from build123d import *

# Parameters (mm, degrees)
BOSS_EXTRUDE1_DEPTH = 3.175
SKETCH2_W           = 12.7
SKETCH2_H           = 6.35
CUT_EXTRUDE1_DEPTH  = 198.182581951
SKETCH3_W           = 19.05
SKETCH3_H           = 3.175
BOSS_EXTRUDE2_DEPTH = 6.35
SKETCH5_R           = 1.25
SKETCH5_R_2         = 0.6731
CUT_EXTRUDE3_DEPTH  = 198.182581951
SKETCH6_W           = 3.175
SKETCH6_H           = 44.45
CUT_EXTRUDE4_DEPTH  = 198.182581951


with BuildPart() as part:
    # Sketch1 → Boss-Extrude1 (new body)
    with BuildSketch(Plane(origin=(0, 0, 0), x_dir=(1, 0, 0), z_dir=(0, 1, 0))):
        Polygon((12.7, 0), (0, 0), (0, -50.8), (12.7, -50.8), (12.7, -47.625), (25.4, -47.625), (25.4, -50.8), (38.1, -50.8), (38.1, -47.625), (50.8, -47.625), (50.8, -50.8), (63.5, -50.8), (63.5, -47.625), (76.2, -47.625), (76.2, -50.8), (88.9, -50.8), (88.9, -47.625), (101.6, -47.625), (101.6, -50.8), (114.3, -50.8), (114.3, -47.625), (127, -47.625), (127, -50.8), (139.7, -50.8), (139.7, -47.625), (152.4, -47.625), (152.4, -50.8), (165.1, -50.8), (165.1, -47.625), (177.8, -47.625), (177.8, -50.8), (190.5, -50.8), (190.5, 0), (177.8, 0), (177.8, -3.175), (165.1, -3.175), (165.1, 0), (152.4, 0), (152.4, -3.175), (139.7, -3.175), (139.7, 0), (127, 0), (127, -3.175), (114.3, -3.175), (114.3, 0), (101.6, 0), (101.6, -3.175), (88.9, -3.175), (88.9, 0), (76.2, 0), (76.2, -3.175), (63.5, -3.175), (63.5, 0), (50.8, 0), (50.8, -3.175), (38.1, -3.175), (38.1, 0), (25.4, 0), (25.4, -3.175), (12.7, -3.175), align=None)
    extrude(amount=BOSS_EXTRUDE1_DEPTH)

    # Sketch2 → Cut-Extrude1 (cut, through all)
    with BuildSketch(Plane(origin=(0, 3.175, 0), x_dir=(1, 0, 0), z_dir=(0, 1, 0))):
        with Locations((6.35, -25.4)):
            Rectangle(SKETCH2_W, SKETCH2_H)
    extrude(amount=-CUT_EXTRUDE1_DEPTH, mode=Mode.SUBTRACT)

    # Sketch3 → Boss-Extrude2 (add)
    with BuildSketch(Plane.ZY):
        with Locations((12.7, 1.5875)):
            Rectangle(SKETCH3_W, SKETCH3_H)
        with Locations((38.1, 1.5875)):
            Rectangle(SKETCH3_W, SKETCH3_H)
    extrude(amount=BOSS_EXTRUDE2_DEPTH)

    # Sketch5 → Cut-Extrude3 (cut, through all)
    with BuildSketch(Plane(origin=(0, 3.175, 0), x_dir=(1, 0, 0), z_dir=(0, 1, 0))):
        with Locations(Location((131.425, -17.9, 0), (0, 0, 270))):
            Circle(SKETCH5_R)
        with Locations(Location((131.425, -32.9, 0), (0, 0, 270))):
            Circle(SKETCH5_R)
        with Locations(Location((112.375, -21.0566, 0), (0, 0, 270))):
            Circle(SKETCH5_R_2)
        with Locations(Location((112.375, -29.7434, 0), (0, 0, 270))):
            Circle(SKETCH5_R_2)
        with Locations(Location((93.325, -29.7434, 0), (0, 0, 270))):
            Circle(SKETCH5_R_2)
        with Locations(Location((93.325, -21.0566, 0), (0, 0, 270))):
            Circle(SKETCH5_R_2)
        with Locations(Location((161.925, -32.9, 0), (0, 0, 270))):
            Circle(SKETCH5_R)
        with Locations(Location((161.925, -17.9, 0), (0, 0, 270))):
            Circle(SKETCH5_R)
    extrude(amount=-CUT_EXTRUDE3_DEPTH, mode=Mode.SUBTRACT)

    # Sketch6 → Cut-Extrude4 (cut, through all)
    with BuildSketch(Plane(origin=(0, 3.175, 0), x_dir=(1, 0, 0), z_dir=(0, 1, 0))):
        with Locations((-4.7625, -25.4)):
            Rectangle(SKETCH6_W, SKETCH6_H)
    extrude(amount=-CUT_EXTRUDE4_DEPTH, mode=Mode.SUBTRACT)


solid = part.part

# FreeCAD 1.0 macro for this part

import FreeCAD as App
import Part
import Sketcher
from FreeCAD import Vector
Q = App.Units.Quantity

doc = App.newDocument("Part")
body = doc.addObject("PartDesign::Body", "Body")

sketch1 = doc.addObject("Sketcher::SketchObject", "Sketch")
body.addObject(sketch1)
sketch1.AttachmentSupport = (doc.XZ_Plane, [""])
sketch1.MapMode = "FlatFace"
sketch1.addGeometry([
    Part.LineSegment(Vector(12.7, 0, 0), Vector(0, 0, 0)),
    Part.LineSegment(Vector(0, 0, 0), Vector(0, 50.8, 0)),
    Part.LineSegment(Vector(0, 50.8, 0), Vector(12.7, 50.8, 0)),
    Part.LineSegment(Vector(12.7, 50.8, 0), Vector(12.7, 47.6, 0)),
    Part.LineSegment(Vector(12.7, 47.6, 0), Vector(25.4, 47.6, 0)),
    Part.LineSegment(Vector(25.4, 47.6, 0), Vector(25.4, 50.8, 0)),
    Part.LineSegment(Vector(25.4, 50.8, 0), Vector(38.1, 50.8, 0)),
    Part.LineSegment(Vector(38.1, 50.8, 0), Vector(38.1, 47.6, 0)),
    Part.LineSegment(Vector(38.1, 47.6, 0), Vector(50.8, 47.6, 0)),
    Part.LineSegment(Vector(50.8, 47.6, 0), Vector(50.8, 50.8, 0)),
    Part.LineSegment(Vector(50.8, 50.8, 0), Vector(63.5, 50.8, 0)),
    Part.LineSegment(Vector(63.5, 50.8, 0), Vector(63.5, 47.6, 0)),
    Part.LineSegment(Vector(63.5, 47.6, 0), Vector(76.2, 47.6, 0)),
    Part.LineSegment(Vector(76.2, 47.6, 0), Vector(76.2, 50.8, 0)),
    Part.LineSegment(Vector(76.2, 50.8, 0), Vector(88.9, 50.8, 0)),
    Part.LineSegment(Vector(88.9, 50.8, 0), Vector(88.9, 47.6, 0)),
    Part.LineSegment(Vector(88.9, 47.6, 0), Vector(101.6, 47.6, 0)),
    Part.LineSegment(Vector(101.6, 47.6, 0), Vector(101.6, 50.8, 0)),
    Part.LineSegment(Vector(101.6, 50.8, 0), Vector(114.3, 50.8, 0)),
    Part.LineSegment(Vector(114.3, 50.8, 0), Vector(114.3, 47.6, 0)),
    Part.LineSegment(Vector(114.3, 47.6, 0), Vector(127, 47.6, 0)),
    Part.LineSegment(Vector(127, 47.6, 0), Vector(127, 50.8, 0)),
    Part.LineSegment(Vector(127, 50.8, 0), Vector(139.7, 50.8, 0)),
    Part.LineSegment(Vector(139.7, 50.8, 0), Vector(139.7, 47.6, 0)),
    Part.LineSegment(Vector(139.7, 47.6, 0), Vector(152.4, 47.6, 0)),
    Part.LineSegment(Vector(152.4, 47.6, 0), Vector(152.4, 50.8, 0)),
    Part.LineSegment(Vector(152.4, 50.8, 0), Vector(165.1, 50.8, 0)),
    Part.LineSegment(Vector(165.1, 50.8, 0), Vector(165.1, 47.6, 0)),
    Part.LineSegment(Vector(165.1, 47.6, 0), Vector(177.8, 47.6, 0)),
    Part.LineSegment(Vector(177.8, 47.6, 0), Vector(177.8, 50.8, 0)),
    Part.LineSegment(Vector(177.8, 50.8, 0), Vector(190.5, 50.8, 0)),
    Part.LineSegment(Vector(190.5, 50.8, 0), Vector(190.5, 0, 0)),
    Part.LineSegment(Vector(190.5, 0, 0), Vector(177.8, 0, 0)),
    Part.LineSegment(Vector(177.8, 0, 0), Vector(177.8, 3.2, 0)),
    Part.LineSegment(Vector(177.8, 3.2, 0), Vector(165.1, 3.2, 0)),
    Part.LineSegment(Vector(165.1, 3.2, 0), Vector(165.1, 0, 0)),
    Part.LineSegment(Vector(165.1, 0, 0), Vector(152.4, 0, 0)),
    Part.LineSegment(Vector(152.4, 0, 0), Vector(152.4, 3.2, 0)),
    Part.LineSegment(Vector(152.4, 3.2, 0), Vector(139.7, 3.2, 0)),
    Part.LineSegment(Vector(139.7, 3.2, 0), Vector(139.7, 0, 0)),
    Part.LineSegment(Vector(139.7, 0, 0), Vector(127, 0, 0)),
    Part.LineSegment(Vector(127, 0, 0), Vector(127, 3.2, 0)),
    Part.LineSegment(Vector(127, 3.2, 0), Vector(114.3, 3.2, 0)),
    Part.LineSegment(Vector(114.3, 3.2, 0), Vector(114.3, 0, 0)),
    Part.LineSegment(Vector(114.3, 0, 0), Vector(101.6, 0, 0)),
    Part.LineSegment(Vector(101.6, 0, 0), Vector(101.6, 3.2, 0)),
    Part.LineSegment(Vector(101.6, 3.2, 0), Vector(88.9, 3.2, 0)),
    Part.LineSegment(Vector(88.9, 3.2, 0), Vector(88.9, 0, 0)),
    Part.LineSegment(Vector(88.9, 0, 0), Vector(76.2, 0, 0)),
    Part.LineSegment(Vector(76.2, 0, 0), Vector(76.2, 3.2, 0)),
    Part.LineSegment(Vector(76.2, 3.2, 0), Vector(63.5, 3.2, 0)),
    Part.LineSegment(Vector(63.5, 3.2, 0), Vector(63.5, 0, 0)),
    Part.LineSegment(Vector(63.5, 0, 0), Vector(50.8, 0, 0)),
    Part.LineSegment(Vector(50.8, 0, 0), Vector(50.8, 3.2, 0)),
    Part.LineSegment(Vector(50.8, 3.2, 0), Vector(38.1, 3.2, 0)),
    Part.LineSegment(Vector(38.1, 3.2, 0), Vector(38.1, 0, 0)),
    Part.LineSegment(Vector(38.1, 0, 0), Vector(25.4, 0, 0)),
    Part.LineSegment(Vector(25.4, 0, 0), Vector(25.4, 3.2, 0)),
    Part.LineSegment(Vector(25.4, 3.2, 0), Vector(12.7, 3.2, 0)),
    Part.LineSegment(Vector(12.7, 3.2, 0), Vector(12.7, 0, 0)),
], False)
sketch1.addConstraint([
    Sketcher.Constraint("Coincident", 0, 2, 1, 1),
    Sketcher.Constraint("Coincident", 1, 2, 2, 1),
    Sketcher.Constraint("Coincident", 2, 2, 3, 1),
    Sketcher.Constraint("Coincident", 3, 2, 4, 1),
    Sketcher.Constraint("Coincident", 4, 2, 5, 1),
    Sketcher.Constraint("Coincident", 5, 2, 6, 1),
    Sketcher.Constraint("Coincident", 6, 2, 7, 1),
    Sketcher.Constraint("Coincident", 7, 2, 8, 1),
    Sketcher.Constraint("Coincident", 8, 2, 9, 1),
    Sketcher.Constraint("Coincident", 9, 2, 10, 1),
    Sketcher.Constraint("Coincident", 10, 2, 11, 1),
    Sketcher.Constraint("Coincident", 11, 2, 12, 1),
    Sketcher.Constraint("Coincident", 12, 2, 13, 1),
    Sketcher.Constraint("Coincident", 13, 2, 14, 1),
    Sketcher.Constraint("Coincident", 14, 2, 15, 1),
    Sketcher.Constraint("Coincident", 15, 2, 16, 1),
    Sketcher.Constraint("Coincident", 16, 2, 17, 1),
    Sketcher.Constraint("Coincident", 17, 2, 18, 1),
    Sketcher.Constraint("Coincident", 18, 2, 19, 1),
    Sketcher.Constraint("Coincident", 19, 2, 20, 1),
    Sketcher.Constraint("Coincident", 20, 2, 21, 1),
    Sketcher.Constraint("Coincident", 21, 2, 22, 1),
    Sketcher.Constraint("Coincident", 22, 2, 23, 1),
    Sketcher.Constraint("Coincident", 23, 2, 24, 1),
    Sketcher.Constraint("Coincident", 24, 2, 25, 1),
    Sketcher.Constraint("Coincident", 25, 2, 26, 1),
    Sketcher.Constraint("Coincident", 26, 2, 27, 1),
    Sketcher.Constraint("Coincident", 27, 2, 28, 1),
    Sketcher.Constraint("Coincident", 28, 2, 29, 1),
    Sketcher.Constraint("Coincident", 29, 2, 30, 1),
    Sketcher.Constraint("Coincident", 30, 2, 31, 1),
    Sketcher.Constraint("Coincident", 31, 2, 32, 1),
    Sketcher.Constraint("Coincident", 32, 2, 33, 1),
    Sketcher.Constraint("Coincident", 33, 2, 34, 1),
    Sketcher.Constraint("Coincident", 34, 2, 35, 1),
    Sketcher.Constraint("Coincident", 35, 2, 36, 1),
    Sketcher.Constraint("Coincident", 36, 2, 37, 1),
    Sketcher.Constraint("Coincident", 37, 2, 38, 1),
    Sketcher.Constraint("Coincident", 38, 2, 39, 1),
    Sketcher.Constraint("Coincident", 39, 2, 40, 1),
    Sketcher.Constraint("Coincident", 40, 2, 41, 1),
    Sketcher.Constraint("Coincident", 41, 2, 42, 1),
    Sketcher.Constraint("Coincident", 42, 2, 43, 1),
    Sketcher.Constraint("Coincident", 43, 2, 44, 1),
    Sketcher.Constraint("Coincident", 44, 2, 45, 1),
    Sketcher.Constraint("Coincident", 45, 2, 46, 1),
    Sketcher.Constraint("Coincident", 46, 2, 47, 1),
    Sketcher.Constraint("Coincident", 47, 2, 48, 1),
    Sketcher.Constraint("Coincident", 48, 2, 49, 1),
    Sketcher.Constraint("Coincident", 49, 2, 50, 1),
    Sketcher.Constraint("Coincident", 50, 2, 51, 1),
    Sketcher.Constraint("Coincident", 51, 2, 52, 1),
    Sketcher.Constraint("Coincident", 52, 2, 53, 1),
    Sketcher.Constraint("Coincident", 53, 2, 54, 1),
    Sketcher.Constraint("Coincident", 54, 2, 55, 1),
    Sketcher.Constraint("Coincident", 55, 2, 56, 1),
    Sketcher.Constraint("Coincident", 56, 2, 57, 1),
    Sketcher.Constraint("Coincident", 57, 2, 58, 1),
    Sketcher.Constraint("Coincident", 58, 2, 59, 1),
    Sketcher.Constraint("Coincident", 59, 2, 0, 1),
    Sketcher.Constraint("Horizontal", 0),
    Sketcher.Constraint("Vertical", 1),
    Sketcher.Constraint("Horizontal", 2),
    Sketcher.Constraint("Vertical", 3),
    Sketcher.Constraint("Horizontal", 4),
    Sketcher.Constraint("Vertical", 5),
    Sketcher.Constraint("Horizontal", 6),
    Sketcher.Constraint("Vertical", 7),
    Sketcher.Constraint("Horizontal", 8),
    Sketcher.Constraint("Vertical", 9),
    Sketcher.Constraint("Horizontal", 10),
    Sketcher.Constraint("Vertical", 11),
    Sketcher.Constraint("Horizontal", 12),
    Sketcher.Constraint("Vertical", 13),
    Sketcher.Constraint("Horizontal", 14),
    Sketcher.Constraint("Vertical", 15),
    Sketcher.Constraint("Horizontal", 16),
    Sketcher.Constraint("Vertical", 17),
    Sketcher.Constraint("Horizontal", 18),
    Sketcher.Constraint("Vertical", 19),
    Sketcher.Constraint("Horizontal", 20),
    Sketcher.Constraint("Vertical", 21),
    Sketcher.Constraint("Horizontal", 22),
    Sketcher.Constraint("Vertical", 23),
    Sketcher.Constraint("Horizontal", 24),
    Sketcher.Constraint("Vertical", 25),
    Sketcher.Constraint("Horizontal", 26),
    Sketcher.Constraint("Vertical", 27),
    Sketcher.Constraint("Horizontal", 28),
    Sketcher.Constraint("Vertical", 29),
    Sketcher.Constraint("Horizontal", 30),
    Sketcher.Constraint("Vertical", 31),
    Sketcher.Constraint("Horizontal", 32),
    Sketcher.Constraint("Vertical", 33),
    Sketcher.Constraint("Horizontal", 34),
    Sketcher.Constraint("Vertical", 35),
    Sketcher.Constraint("Horizontal", 36),
    Sketcher.Constraint("Vertical", 37),
    Sketcher.Constraint("Horizontal", 38),
    Sketcher.Constraint("Vertical", 39),
    Sketcher.Constraint("Horizontal", 40),
    Sketcher.Constraint("Vertical", 41),
    Sketcher.Constraint("Horizontal", 42),
    Sketcher.Constraint("Vertical", 43),
    Sketcher.Constraint("Horizontal", 44),
    Sketcher.Constraint("Vertical", 45),
    Sketcher.Constraint("Horizontal", 46),
    Sketcher.Constraint("Vertical", 47),
    Sketcher.Constraint("Horizontal", 48),
    Sketcher.Constraint("Vertical", 49),
    Sketcher.Constraint("Horizontal", 50),
    Sketcher.Constraint("Vertical", 51),
    Sketcher.Constraint("Horizontal", 52),
    Sketcher.Constraint("Vertical", 53),
    Sketcher.Constraint("Horizontal", 54),
    Sketcher.Constraint("Vertical", 55),
    Sketcher.Constraint("Horizontal", 56),
    Sketcher.Constraint("Vertical", 57),
    Sketcher.Constraint("Horizontal", 58),
    Sketcher.Constraint("Vertical", 59),
    Sketcher.Constraint("Coincident", 0, 2, -1, 1),
    Sketcher.Constraint("PointOnObject", 31, 2, -1),
    Sketcher.Constraint("PointOnObject", 35, 2, -1),
    Sketcher.Constraint("PointOnObject", 39, 2, -1),
    Sketcher.Constraint("PointOnObject", 43, 2, -1),
    Sketcher.Constraint("PointOnObject", 47, 2, -1),
    Sketcher.Constraint("PointOnObject", 51, 2, -1),
    Sketcher.Constraint("PointOnObject", 55, 2, -1),
    Sketcher.Constraint("Horizontal", 2, 2, 5, 2),
    Sketcher.Constraint("Horizontal", 4, 2, 7, 2),
    Sketcher.Constraint("Horizontal", 6, 2, 9, 2),
    Sketcher.Constraint("Horizontal", 8, 2, 11, 2),
    Sketcher.Constraint("Horizontal", 10, 2, 13, 2),
    Sketcher.Constraint("Horizontal", 12, 2, 15, 2),
    Sketcher.Constraint("Horizontal", 14, 2, 17, 2),
    Sketcher.Constraint("Horizontal", 16, 2, 19, 2),
    Sketcher.Constraint("Horizontal", 18, 2, 21, 2),
    Sketcher.Constraint("Horizontal", 20, 2, 23, 2),
    Sketcher.Constraint("Horizontal", 22, 2, 25, 2),
    Sketcher.Constraint("Horizontal", 24, 2, 27, 2),
    Sketcher.Constraint("Horizontal", 26, 2, 29, 2),
    Sketcher.Constraint("Horizontal", 34, 2, 37, 2),
    Sketcher.Constraint("Horizontal", 38, 2, 41, 2),
    Sketcher.Constraint("Horizontal", 42, 2, 45, 2),
    Sketcher.Constraint("Horizontal", 46, 2, 49, 2),
    Sketcher.Constraint("Horizontal", 50, 2, 53, 2),
    Sketcher.Constraint("Horizontal", 54, 2, 57, 2),
    Sketcher.Constraint("Vertical", 29, 2, 32, 2),
    Sketcher.Constraint("Vertical", 27, 2, 34, 2),
    Sketcher.Constraint("Vertical", 25, 2, 36, 2),
    Sketcher.Constraint("Vertical", 23, 2, 38, 2),
    Sketcher.Constraint("Vertical", 21, 2, 40, 2),
    Sketcher.Constraint("Vertical", 19, 2, 42, 2),
    Sketcher.Constraint("Vertical", 17, 2, 44, 2),
    Sketcher.Constraint("Vertical", 15, 2, 46, 2),
    Sketcher.Constraint("Vertical", 13, 2, 48, 2),
    Sketcher.Constraint("Vertical", 11, 2, 50, 2),
    Sketcher.Constraint("Vertical", 9, 2, 52, 2),
    Sketcher.Constraint("Vertical", 7, 2, 54, 2),
    Sketcher.Constraint("Vertical", 5, 2, 56, 2),
    Sketcher.Constraint("Vertical", 3, 2, 58, 2),
    Sketcher.Constraint("Equal", 2, 4),
    Sketcher.Constraint("Equal", 4, 6),
    Sketcher.Constraint("Equal", 6, 8),
    Sketcher.Constraint("Equal", 8, 10),
    Sketcher.Constraint("Equal", 10, 12),
    Sketcher.Constraint("Equal", 12, 14),
    Sketcher.Constraint("Equal", 14, 16),
    Sketcher.Constraint("Equal", 16, 18),
    Sketcher.Constraint("Equal", 18, 20),
    Sketcher.Constraint("Equal", 20, 22),
    Sketcher.Constraint("Equal", 22, 24),
    Sketcher.Constraint("Equal", 24, 26),
    Sketcher.Constraint("Equal", 26, 28),
    Sketcher.Constraint("Equal", 28, 30),
    Sketcher.Constraint("Equal", 29, 33),
    Sketcher.Constraint("DistanceY", 1, 1, 1, 2, Q("2 in")),
    Sketcher.Constraint("DistanceX", 0, 2, 0, 1, Q("0.5 in")),
    Sketcher.Constraint("DistanceY", 3, 2, 3, 1, Q("0.125 in")),
])
pad1 = doc.addObject("PartDesign::Pad", "Pad")
body.addObject(pad1)
pad1.Profile = sketch1
pad1.Length = Q("0.125 in")
pad1.Reversed = True

sketch2 = doc.addObject("Sketcher::SketchObject", "Sketch001")
body.addObject(sketch2)
sketch2.AttachmentSupport = (doc.XZ_Plane, [""])
sketch2.MapMode = "FlatFace"
sketch2.AttachmentOffset = App.Placement(Vector(0, 0, -0.125 * 25.4), App.Rotation())
sketch2.addGeometry([
    Part.LineSegment(Vector(0, 22, 0), Vector(0, 29, 0)),
    Part.LineSegment(Vector(0, 29, 0), Vector(13, 29, 0)),
    Part.LineSegment(Vector(13, 29, 0), Vector(13, 22, 0)),
    Part.LineSegment(Vector(13, 22, 0), Vector(0, 22, 0)),
], False)
sketch2.addConstraint([
    Sketcher.Constraint("Coincident", 0, 2, 1, 1),
    Sketcher.Constraint("Coincident", 1, 2, 2, 1),
    Sketcher.Constraint("Coincident", 2, 2, 3, 1),
    Sketcher.Constraint("Coincident", 3, 2, 0, 1),
    Sketcher.Constraint("Vertical", 0),
    Sketcher.Constraint("Horizontal", 1),
    Sketcher.Constraint("Vertical", 2),
    Sketcher.Constraint("Horizontal", 3),
    Sketcher.Constraint("PointOnObject", 0, 2, -2),
    Sketcher.Constraint("DistanceX", 1, 1, 1, 2, Q("0.5 in")),
    Sketcher.Constraint("DistanceY", 0, 1, 0, 2, Q("0.25 in")),
    Sketcher.Constraint("DistanceY", -1, 1, 0, 2, Q("1.125 in")),
])
pocket1 = doc.addObject("PartDesign::Pocket", "Pocket")
body.addObject(pocket1)
pocket1.Profile = sketch2
pocket1.Type = "ThroughAll"
pocket1.Reversed = True

sketch3 = doc.addObject("Sketcher::SketchObject", "Sketch002")
body.addObject(sketch3)
sketch3.AttachmentSupport = (doc.YZ_Plane, [""])
sketch3.MapMode = "FlatFace"
sketch3.addGeometry([
    Part.LineSegment(Vector(3.2, 3.2, 0), Vector(0, 3.2, 0)),
    Part.LineSegment(Vector(0, 3.2, 0), Vector(0, 22.2, 0)),
    Part.LineSegment(Vector(0, 22.2, 0), Vector(3.2, 22.2, 0)),
    Part.LineSegment(Vector(3.2, 22.2, 0), Vector(3.2, 3.2, 0)),
    Part.LineSegment(Vector(3.2, 28.6, 0), Vector(0, 28.6, 0)),
    Part.LineSegment(Vector(0, 28.6, 0), Vector(0, 47.6, 0)),
    Part.LineSegment(Vector(0, 47.6, 0), Vector(3.2, 47.6, 0)),
    Part.LineSegment(Vector(3.2, 47.6, 0), Vector(3.2, 28.6, 0)),
], False)
sketch3.addConstraint([
    Sketcher.Constraint("Coincident", 0, 2, 1, 1),
    Sketcher.Constraint("Coincident", 1, 2, 2, 1),
    Sketcher.Constraint("Coincident", 2, 2, 3, 1),
    Sketcher.Constraint("Coincident", 3, 2, 0, 1),
    Sketcher.Constraint("Coincident", 4, 2, 5, 1),
    Sketcher.Constraint("Coincident", 5, 2, 6, 1),
    Sketcher.Constraint("Coincident", 6, 2, 7, 1),
    Sketcher.Constraint("Coincident", 7, 2, 4, 1),
    Sketcher.Constraint("Horizontal", 0),
    Sketcher.Constraint("Vertical", 1),
    Sketcher.Constraint("Horizontal", 2),
    Sketcher.Constraint("Vertical", 3),
    Sketcher.Constraint("Horizontal", 4),
    Sketcher.Constraint("Vertical", 5),
    Sketcher.Constraint("Horizontal", 6),
    Sketcher.Constraint("Vertical", 7),
    Sketcher.Constraint("PointOnObject", 0, 2, -2),
    Sketcher.Constraint("PointOnObject", 4, 2, -2),
    Sketcher.Constraint("Vertical", 3, 2, 6, 2),
    Sketcher.Constraint("Equal", 3, 5),
    Sketcher.Constraint("DistanceY", 0, 2, 4, 2, Q("1 in")),
    Sketcher.Constraint("DistanceY", 1, 1, 1, 2, Q("0.75 in")),
    Sketcher.Constraint("DistanceX", 0, 2, 0, 1, Q("0.125 in")),
    Sketcher.Constraint("DistanceY", -1, 1, 0, 2, Q("0.125 in")),
])
pad2 = doc.addObject("PartDesign::Pad", "Pad001")
body.addObject(pad2)
pad2.Profile = sketch3
pad2.Length = Q("0.25 in")
pad2.Reversed = True

sketch4 = doc.addObject("Sketcher::SketchObject", "Sketch003")
body.addObject(sketch4)
sketch4.AttachmentSupport = (doc.XZ_Plane, [""])
sketch4.MapMode = "FlatFace"
sketch4.AttachmentOffset = App.Placement(Vector(0, 0, -0.125 * 25.4), App.Rotation())
sketch4.addGeometry([
    Part.Circle(Vector(131.4, 17.9, 0), Vector(0, 0, 1), 1.2),
    Part.Circle(Vector(131.4, 32.9, 0), Vector(0, 0, 1), 1.2),
    Part.Circle(Vector(112.4, 21.1, 0), Vector(0, 0, 1), 0.7),
    Part.Circle(Vector(112.4, 29.7, 0), Vector(0, 0, 1), 0.7),
    Part.Circle(Vector(93.3, 29.7, 0), Vector(0, 0, 1), 0.7),
    Part.Circle(Vector(93.3, 21.1, 0), Vector(0, 0, 1), 0.7),
    Part.Circle(Vector(161.9, 32.9, 0), Vector(0, 0, 1), 1.2),
    Part.Circle(Vector(161.9, 17.9, 0), Vector(0, 0, 1), 1.2),
], False)
sketch4.addConstraint([
    Sketcher.Constraint("Equal", 0, 1),
    Sketcher.Constraint("Equal", 2, 3),
    Sketcher.Constraint("Equal", 3, 4),
    Sketcher.Constraint("Equal", 4, 5),
    Sketcher.Constraint("Equal", 1, 6),
    Sketcher.Constraint("Equal", 6, 7),
    Sketcher.Constraint("Horizontal", 3, 3, 4, 3),
    Sketcher.Constraint("Horizontal", 2, 3, 5, 3),
    Sketcher.Constraint("Horizontal", 1, 3, 6, 3),
    Sketcher.Constraint("Horizontal", 0, 3, 7, 3),
    Sketcher.Constraint("Vertical", 0, 3, 1, 3),
    Sketcher.Constraint("Vertical", 2, 3, 3, 3),
    Sketcher.Constraint("Vertical", 4, 3, 5, 3),
    Sketcher.Constraint("Vertical", 6, 3, 7, 3),
    Sketcher.Constraint("Diameter", 2, Q("0.053 in")),
    Sketcher.Constraint("DistanceX", 4, 3, 1, 3, Q("1.5 in")),
    Sketcher.Constraint("Diameter", 0, Q("2.5 mm")),
    Sketcher.Constraint("DistanceX", 2, 3, 0, 3, Q("0.75 in")),
    Sketcher.Constraint("DistanceY", -1, 1, 2, 3, Q("0.829 in")),
    Sketcher.Constraint("DistanceY", -1, 1, 3, 3, Q("1.171 in")),
    Sketcher.Constraint("DistanceX", -1, 1, 6, 3, Q("6.375 in")),
    Sketcher.Constraint("DistanceX", -1, 1, 0, 3, Q("131.425 mm")),
    Sketcher.Constraint("DistanceY", -1, 1, 0, 3, Q("17.9 mm")),
    Sketcher.Constraint("DistanceY", -1, 1, 1, 3, Q("32.9 mm")),
])
pocket2 = doc.addObject("PartDesign::Pocket", "Pocket001")
body.addObject(pocket2)
pocket2.Profile = sketch4
pocket2.Type = "ThroughAll"
pocket2.Reversed = True

sketch5 = doc.addObject("Sketcher::SketchObject", "Sketch004")
body.addObject(sketch5)
sketch5.AttachmentSupport = (doc.XZ_Plane, [""])
sketch5.MapMode = "FlatFace"
sketch5.AttachmentOffset = App.Placement(Vector(0, 0, -0.125 * 25.4), App.Rotation())
sketch5.addGeometry([
    Part.LineSegment(Vector(-6.3, 3.2, 0), Vector(-6.3, 47.6, 0)),
    Part.LineSegment(Vector(-6.3, 47.6, 0), Vector(-3.2, 47.6, 0)),
    Part.LineSegment(Vector(-3.2, 47.6, 0), Vector(-3.2, 3.2, 0)),
    Part.LineSegment(Vector(-3.2, 3.2, 0), Vector(-6.3, 3.2, 0)),
], False)
sketch5.addConstraint([
    Sketcher.Constraint("Coincident", 0, 2, 1, 1),
    Sketcher.Constraint("Coincident", 1, 2, 2, 1),
    Sketcher.Constraint("Coincident", 2, 2, 3, 1),
    Sketcher.Constraint("Coincident", 3, 2, 0, 1),
    Sketcher.Constraint("Vertical", 0),
    Sketcher.Constraint("Horizontal", 1),
    Sketcher.Constraint("Vertical", 2),
    Sketcher.Constraint("Horizontal", 3),
    Sketcher.Constraint("DistanceY", 0, 1, 0, 2, Q("1.75 in")),
    Sketcher.Constraint("DistanceX", 1, 1, 1, 2, Q("0.125 in")),
    Sketcher.Constraint("DistanceX", 0, 2, -1, 1, Q("0.25 in")),
    Sketcher.Constraint("DistanceY", -1, 1, 0, 2, Q("1.875 in")),
])
pocket3 = doc.addObject("PartDesign::Pocket", "Pocket002")
body.addObject(pocket3)
pocket3.Profile = sketch5
pocket3.Type = "ThroughAll"
pocket3.Reversed = True

doc.recompute()
